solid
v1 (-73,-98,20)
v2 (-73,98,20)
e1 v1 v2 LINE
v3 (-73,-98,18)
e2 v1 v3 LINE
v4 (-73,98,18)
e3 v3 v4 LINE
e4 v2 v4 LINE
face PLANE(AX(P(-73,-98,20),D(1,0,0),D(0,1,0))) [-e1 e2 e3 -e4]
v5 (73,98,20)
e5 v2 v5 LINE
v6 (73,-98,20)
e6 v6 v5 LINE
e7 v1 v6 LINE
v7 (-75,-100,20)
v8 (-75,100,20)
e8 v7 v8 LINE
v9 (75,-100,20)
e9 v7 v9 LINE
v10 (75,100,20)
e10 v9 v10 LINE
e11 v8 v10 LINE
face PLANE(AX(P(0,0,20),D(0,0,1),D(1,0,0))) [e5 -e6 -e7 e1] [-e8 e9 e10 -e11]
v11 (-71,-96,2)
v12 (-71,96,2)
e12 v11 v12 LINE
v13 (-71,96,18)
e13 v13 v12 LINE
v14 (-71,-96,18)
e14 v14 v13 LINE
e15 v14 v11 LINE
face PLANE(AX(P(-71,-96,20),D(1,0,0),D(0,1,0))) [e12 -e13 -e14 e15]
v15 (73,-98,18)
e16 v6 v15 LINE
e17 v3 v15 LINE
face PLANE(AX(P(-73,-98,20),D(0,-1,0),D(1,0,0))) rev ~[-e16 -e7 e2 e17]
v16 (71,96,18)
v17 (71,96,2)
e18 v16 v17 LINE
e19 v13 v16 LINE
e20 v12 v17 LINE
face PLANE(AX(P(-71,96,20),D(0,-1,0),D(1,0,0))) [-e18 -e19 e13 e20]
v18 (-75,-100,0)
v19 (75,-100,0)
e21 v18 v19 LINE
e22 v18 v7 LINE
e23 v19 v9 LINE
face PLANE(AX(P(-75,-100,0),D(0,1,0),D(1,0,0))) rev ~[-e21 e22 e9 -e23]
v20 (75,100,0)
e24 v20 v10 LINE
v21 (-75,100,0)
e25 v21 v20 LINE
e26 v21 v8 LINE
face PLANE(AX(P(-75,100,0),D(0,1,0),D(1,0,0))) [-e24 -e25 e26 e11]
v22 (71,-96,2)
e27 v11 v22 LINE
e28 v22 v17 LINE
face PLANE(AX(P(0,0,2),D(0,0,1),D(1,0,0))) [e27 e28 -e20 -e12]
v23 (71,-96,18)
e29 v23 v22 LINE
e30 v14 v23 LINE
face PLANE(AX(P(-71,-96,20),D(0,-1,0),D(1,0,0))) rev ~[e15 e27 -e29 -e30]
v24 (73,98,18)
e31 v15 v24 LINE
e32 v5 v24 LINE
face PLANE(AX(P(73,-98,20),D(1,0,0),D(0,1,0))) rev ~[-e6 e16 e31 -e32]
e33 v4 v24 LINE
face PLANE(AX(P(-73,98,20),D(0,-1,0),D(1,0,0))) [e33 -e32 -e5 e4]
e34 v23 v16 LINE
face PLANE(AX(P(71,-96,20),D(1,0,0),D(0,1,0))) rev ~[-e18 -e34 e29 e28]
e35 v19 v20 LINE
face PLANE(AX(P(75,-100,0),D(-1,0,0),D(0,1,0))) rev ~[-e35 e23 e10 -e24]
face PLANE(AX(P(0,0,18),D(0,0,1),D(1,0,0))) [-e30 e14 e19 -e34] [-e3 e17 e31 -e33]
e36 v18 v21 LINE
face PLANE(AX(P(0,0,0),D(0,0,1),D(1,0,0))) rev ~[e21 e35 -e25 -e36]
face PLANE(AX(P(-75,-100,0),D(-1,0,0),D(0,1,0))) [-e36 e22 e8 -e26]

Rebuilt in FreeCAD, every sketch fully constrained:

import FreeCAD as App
import Part
import Sketcher


def add_polygon(sketch, points):
    """Adds a closed chain of lines whose ends are joined by coincident constraints."""
    first, n = sketch.GeometryCount, len(points)
    for a, b in zip(points, points[1:] + points[:1]):
        sketch.addGeometry(Part.LineSegment(App.Vector(*a, 0), App.Vector(*b, 0)), False)
    for i in range(n):
        sketch.addConstraint(Sketcher.Constraint("Coincident", first + i, 2, first + (i + 1) % n, 1))

doc = App.newDocument("Part")
body = doc.addObject("PartDesign::Body", "Body")

# Sketch on XY plane
sketch1 = body.newObject("Sketcher::SketchObject", "Sketch")
sketch1.AttachmentSupport = (doc.getObject("XY_Plane"), [""])
sketch1.MapMode = "FlatFace"
add_polygon(sketch1, [(-75, 100), (-75, -100), (75, -100), (75, 100)])  # lines 0-3
sketch1.addConstraint([
    Sketcher.Constraint("Vertical", 0),
    Sketcher.Constraint("Horizontal", 1),
    Sketcher.Constraint("Vertical", 2),
    Sketcher.Constraint("Horizontal", 3),
    Sketcher.Constraint("Symmetric", 0, 2, 2, 2, -1, 1),
    Sketcher.Constraint("DistanceX", 1, 1, 1, 2, 150.0),
    Sketcher.Constraint("DistanceY", 0, 2, 0, 1, 200.0),
])
pad1 = body.newObject("PartDesign::Pad", "Pad")
pad1.Profile = sketch1
pad1.Length = 20

# Sketch on XY plane
sketch2 = body.newObject("Sketcher::SketchObject", "Sketch001")
sketch2.AttachmentSupport = (doc.getObject("XY_Plane"), [""])
sketch2.MapMode = "FlatFace"
sketch2.AttachmentOffset = App.Placement(App.Vector(0, 0, 20), App.Rotation())
add_polygon(sketch2, [(-73, 98), (-73, -98), (73, -98), (73, 98)])  # lines 0-3
sketch2.addConstraint([
    Sketcher.Constraint("Vertical", 0),
    Sketcher.Constraint("Horizontal", 1),
    Sketcher.Constraint("Vertical", 2),
    Sketcher.Constraint("Horizontal", 3),
    Sketcher.Constraint("Symmetric", 0, 2, 2, 2, -1, 1),
    Sketcher.Constraint("DistanceX", 1, 1, 1, 2, 146.0),
    Sketcher.Constraint("DistanceY", 0, 2, 0, 1, 196.0),
])
pocket1 = body.newObject("PartDesign::Pocket", "Pocket")
pocket1.Profile = sketch2
pocket1.Length = 2

# Sketch on XY plane
sketch3 = body.newObject("Sketcher::SketchObject", "Sketch002")
sketch3.AttachmentSupport = (doc.getObject("XY_Plane"), [""])
sketch3.MapMode = "FlatFace"
sketch3.AttachmentOffset = App.Placement(App.Vector(0, 0, 20), App.Rotation())
add_polygon(sketch3, [(-71, 96), (-71, -96), (71, -96), (71, 96)])  # lines 0-3
sketch3.addConstraint([
    Sketcher.Constraint("Vertical", 0),
    Sketcher.Constraint("Horizontal", 1),
    Sketcher.Constraint("Vertical", 2),
    Sketcher.Constraint("Horizontal", 3),
    Sketcher.Constraint("Symmetric", 0, 2, 2, 2, -1, 1),
    Sketcher.Constraint("DistanceX", 1, 1, 1, 2, 142.0),
    Sketcher.Constraint("DistanceY", 0, 2, 0, 1, 192.0),
])
pocket2 = body.newObject("PartDesign::Pocket", "Pocket001")
pocket2.Profile = sketch3
pocket2.Length = 18

doc.recompute()
